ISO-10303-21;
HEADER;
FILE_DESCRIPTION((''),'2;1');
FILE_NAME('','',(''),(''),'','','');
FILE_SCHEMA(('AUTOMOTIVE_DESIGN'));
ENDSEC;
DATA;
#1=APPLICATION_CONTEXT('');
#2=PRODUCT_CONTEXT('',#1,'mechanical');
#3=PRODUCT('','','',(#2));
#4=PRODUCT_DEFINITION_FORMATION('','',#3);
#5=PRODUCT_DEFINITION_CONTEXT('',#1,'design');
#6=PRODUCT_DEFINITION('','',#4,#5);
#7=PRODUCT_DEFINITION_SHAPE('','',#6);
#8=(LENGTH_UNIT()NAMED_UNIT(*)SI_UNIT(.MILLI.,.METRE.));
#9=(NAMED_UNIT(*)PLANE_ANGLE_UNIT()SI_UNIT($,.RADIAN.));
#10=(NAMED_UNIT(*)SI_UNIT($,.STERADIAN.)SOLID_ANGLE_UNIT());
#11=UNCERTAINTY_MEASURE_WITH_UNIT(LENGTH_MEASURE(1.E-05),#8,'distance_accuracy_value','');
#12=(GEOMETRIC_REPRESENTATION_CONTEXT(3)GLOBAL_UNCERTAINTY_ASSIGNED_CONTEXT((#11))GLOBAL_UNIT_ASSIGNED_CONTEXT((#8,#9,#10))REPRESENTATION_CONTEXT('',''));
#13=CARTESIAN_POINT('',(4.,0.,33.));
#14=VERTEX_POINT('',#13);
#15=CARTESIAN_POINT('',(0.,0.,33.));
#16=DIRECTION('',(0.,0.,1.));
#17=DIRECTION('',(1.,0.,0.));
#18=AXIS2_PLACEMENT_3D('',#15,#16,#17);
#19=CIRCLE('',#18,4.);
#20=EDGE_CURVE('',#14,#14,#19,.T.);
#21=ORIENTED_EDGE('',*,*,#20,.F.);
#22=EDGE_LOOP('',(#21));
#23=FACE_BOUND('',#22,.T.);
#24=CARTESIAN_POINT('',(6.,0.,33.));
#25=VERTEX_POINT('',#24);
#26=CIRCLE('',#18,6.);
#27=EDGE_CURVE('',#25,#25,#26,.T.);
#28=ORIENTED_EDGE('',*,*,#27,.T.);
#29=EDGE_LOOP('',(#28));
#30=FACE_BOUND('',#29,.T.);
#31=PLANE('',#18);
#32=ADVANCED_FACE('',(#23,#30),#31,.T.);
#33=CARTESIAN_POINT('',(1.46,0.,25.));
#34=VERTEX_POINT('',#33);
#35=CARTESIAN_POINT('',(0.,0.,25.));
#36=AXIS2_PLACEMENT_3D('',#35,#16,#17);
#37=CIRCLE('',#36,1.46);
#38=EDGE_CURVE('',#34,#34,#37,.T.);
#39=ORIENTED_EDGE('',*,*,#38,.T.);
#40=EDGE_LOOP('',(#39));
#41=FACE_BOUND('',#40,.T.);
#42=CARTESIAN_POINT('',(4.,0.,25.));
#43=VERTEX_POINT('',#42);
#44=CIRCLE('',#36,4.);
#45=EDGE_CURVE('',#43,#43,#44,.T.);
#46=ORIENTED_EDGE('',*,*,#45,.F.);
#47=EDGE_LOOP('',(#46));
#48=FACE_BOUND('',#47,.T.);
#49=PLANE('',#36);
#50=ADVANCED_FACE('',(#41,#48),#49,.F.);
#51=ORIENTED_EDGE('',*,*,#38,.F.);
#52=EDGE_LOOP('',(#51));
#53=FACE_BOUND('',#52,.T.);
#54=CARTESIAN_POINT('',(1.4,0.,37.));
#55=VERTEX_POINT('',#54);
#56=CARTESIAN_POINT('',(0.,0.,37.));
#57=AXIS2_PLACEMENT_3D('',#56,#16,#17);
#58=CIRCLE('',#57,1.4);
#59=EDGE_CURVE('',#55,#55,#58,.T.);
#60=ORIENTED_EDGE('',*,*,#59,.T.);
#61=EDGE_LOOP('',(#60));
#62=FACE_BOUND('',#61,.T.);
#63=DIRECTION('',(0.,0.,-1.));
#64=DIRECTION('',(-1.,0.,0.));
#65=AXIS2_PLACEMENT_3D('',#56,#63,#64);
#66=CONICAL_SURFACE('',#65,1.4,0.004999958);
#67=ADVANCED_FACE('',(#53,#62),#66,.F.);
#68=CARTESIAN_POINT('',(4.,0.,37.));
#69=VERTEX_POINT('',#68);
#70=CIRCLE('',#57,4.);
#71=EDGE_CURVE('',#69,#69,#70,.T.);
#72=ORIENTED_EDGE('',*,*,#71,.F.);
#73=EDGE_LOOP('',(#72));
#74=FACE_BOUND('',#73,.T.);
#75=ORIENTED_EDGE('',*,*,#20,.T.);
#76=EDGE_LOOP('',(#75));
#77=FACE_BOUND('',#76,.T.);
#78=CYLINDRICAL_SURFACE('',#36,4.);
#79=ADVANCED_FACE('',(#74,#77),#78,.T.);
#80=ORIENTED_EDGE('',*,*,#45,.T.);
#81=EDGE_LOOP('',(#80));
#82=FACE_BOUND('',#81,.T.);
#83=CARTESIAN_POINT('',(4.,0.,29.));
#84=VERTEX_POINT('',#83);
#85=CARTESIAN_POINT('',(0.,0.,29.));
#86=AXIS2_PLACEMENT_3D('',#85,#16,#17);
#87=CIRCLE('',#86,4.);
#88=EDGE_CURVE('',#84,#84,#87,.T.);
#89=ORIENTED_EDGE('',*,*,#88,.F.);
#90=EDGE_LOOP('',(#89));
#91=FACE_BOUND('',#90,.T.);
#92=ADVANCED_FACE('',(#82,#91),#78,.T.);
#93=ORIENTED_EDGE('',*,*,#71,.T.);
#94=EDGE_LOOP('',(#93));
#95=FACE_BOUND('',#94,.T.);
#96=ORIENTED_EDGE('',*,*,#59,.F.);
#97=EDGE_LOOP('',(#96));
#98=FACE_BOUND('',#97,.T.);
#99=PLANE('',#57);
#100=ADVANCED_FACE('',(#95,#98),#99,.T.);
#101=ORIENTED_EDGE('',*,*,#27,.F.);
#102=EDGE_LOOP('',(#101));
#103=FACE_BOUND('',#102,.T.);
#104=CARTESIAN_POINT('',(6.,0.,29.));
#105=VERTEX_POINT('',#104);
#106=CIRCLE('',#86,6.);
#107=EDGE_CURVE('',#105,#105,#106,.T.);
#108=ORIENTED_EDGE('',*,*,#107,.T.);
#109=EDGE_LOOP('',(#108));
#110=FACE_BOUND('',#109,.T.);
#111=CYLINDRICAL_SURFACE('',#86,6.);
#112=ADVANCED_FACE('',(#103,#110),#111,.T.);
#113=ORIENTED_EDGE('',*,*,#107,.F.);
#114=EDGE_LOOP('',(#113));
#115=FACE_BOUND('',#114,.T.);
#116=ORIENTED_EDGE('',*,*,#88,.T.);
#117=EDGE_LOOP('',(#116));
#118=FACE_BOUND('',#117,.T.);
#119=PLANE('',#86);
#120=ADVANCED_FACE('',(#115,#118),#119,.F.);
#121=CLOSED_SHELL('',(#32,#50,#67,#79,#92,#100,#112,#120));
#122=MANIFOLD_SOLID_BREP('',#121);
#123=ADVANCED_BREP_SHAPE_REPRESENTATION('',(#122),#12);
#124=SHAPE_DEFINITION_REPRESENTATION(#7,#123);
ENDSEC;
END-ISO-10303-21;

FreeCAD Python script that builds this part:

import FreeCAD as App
import Part
import Sketcher

V = App.Vector
Q = App.Units.Quantity

doc = App.newDocument("Part")
params = doc.addObject("Spreadsheet::Sheet", "Params")
for row, (alias, value) in enumerate([
    ("sketch1_diameter", "12 mm"),
    ("pad1_length", "4 mm"),
    ("sketch2_diameter", "8 mm"),
    ("pad2_length", "4 mm"),
    ("pad2_length2", "8 mm"),
    ("sketch3_diameter", "2.8 mm"),
    ("sketch4_diameter", "2.92 mm"),
], start=1):
    params.set(f"A{row}", alias)
    params.set(f"B{row}", "=" + value)
    params.setAlias(f"B{row}", alias)

body = doc.addObject("PartDesign::Body", "Body")

sketch1 = body.newObject("Sketcher::SketchObject", "Sketch")
sketch1.AttachmentSupport = (doc.getObject("XY_Plane"), [""])
sketch1.MapMode = "FlatFace"
sketch1.AttachmentOffset = App.Placement(V(0, 0, 33), App.Rotation())
sketch1.addGeometry(Part.Circle(V(0, 0, 0), V(0, 0, 1), 6), False)
sketch1.addConstraint(Sketcher.Constraint("Coincident", 0, 3, -1, 1))
sketch1.addConstraint(Sketcher.Constraint("Diameter", 0, Q("12 mm")))
sketch1.setExpression("Constraints[1]", "Params.sketch1_diameter")
pad1 = body.newObject("PartDesign::Pad", "Pad")
pad1.Profile = sketch1
pad1.setExpression("Length", "Params.pad1_length")
pad1.Reversed = True

sketch2 = body.newObject("Sketcher::SketchObject", "Sketch001")
sketch2.AttachmentSupport = (doc.getObject("XY_Plane"), [""])
sketch2.MapMode = "FlatFace"
sketch2.AttachmentOffset = App.Placement(V(0, 0, 33), App.Rotation())
sketch2.addGeometry(Part.Circle(V(0, 0, 0), V(0, 0, 1), 4), False)
sketch2.addConstraint(Sketcher.Constraint("Coincident", 0, 3, -1, 1))
sketch2.addConstraint(Sketcher.Constraint("Diameter", 0, Q("8 mm")))
sketch2.setExpression("Constraints[1]", "Params.sketch2_diameter")
pad2 = body.newObject("PartDesign::Pad", "Pad001")
pad2.Profile = sketch2
pad2.Type = "TwoLengths"
pad2.setExpression("Length", "Params.pad2_length")
pad2.setExpression("Length2", "Params.pad2_length2")

sketch3 = body.newObject("Sketcher::SketchObject", "Sketch002")
sketch3.AttachmentSupport = (doc.getObject("XY_Plane"), [""])
sketch3.MapMode = "FlatFace"
sketch3.AttachmentOffset = App.Placement(V(0, 0, 37), App.Rotation())
sketch3.addGeometry(Part.Circle(V(0, 0, 0), V(0, 0, 1), 1.4), False)
sketch3.addConstraint(Sketcher.Constraint("Coincident", 0, 3, -1, 1))
sketch3.addConstraint(Sketcher.Constraint("Diameter", 0, Q("2.8 mm")))
sketch3.setExpression("Constraints[1]", "Params.sketch3_diameter")

sketch4 = body.newObject("Sketcher::SketchObject", "Sketch003")
sketch4.AttachmentSupport = (doc.getObject("XY_Plane"), [""])
sketch4.MapMode = "FlatFace"
sketch4.AttachmentOffset = App.Placement(V(0, 0, 25), App.Rotation())
sketch4.addGeometry(Part.Circle(V(0, 0, 0), V(0, 0, 1), 1.5), False)
sketch4.addConstraint(Sketcher.Constraint("Coincident", 0, 3, -1, 1))
sketch4.addConstraint(Sketcher.Constraint("Diameter", 0, Q("2.92 mm")))
sketch4.setExpression("Constraints[1]", "Params.sketch4_diameter")

subtractiveloft = body.newObject("PartDesign::SubtractiveLoft", "SubtractiveLoft")
subtractiveloft.Profile = sketch3
subtractiveloft.Sections = [sketch4]

doc.recompute()
